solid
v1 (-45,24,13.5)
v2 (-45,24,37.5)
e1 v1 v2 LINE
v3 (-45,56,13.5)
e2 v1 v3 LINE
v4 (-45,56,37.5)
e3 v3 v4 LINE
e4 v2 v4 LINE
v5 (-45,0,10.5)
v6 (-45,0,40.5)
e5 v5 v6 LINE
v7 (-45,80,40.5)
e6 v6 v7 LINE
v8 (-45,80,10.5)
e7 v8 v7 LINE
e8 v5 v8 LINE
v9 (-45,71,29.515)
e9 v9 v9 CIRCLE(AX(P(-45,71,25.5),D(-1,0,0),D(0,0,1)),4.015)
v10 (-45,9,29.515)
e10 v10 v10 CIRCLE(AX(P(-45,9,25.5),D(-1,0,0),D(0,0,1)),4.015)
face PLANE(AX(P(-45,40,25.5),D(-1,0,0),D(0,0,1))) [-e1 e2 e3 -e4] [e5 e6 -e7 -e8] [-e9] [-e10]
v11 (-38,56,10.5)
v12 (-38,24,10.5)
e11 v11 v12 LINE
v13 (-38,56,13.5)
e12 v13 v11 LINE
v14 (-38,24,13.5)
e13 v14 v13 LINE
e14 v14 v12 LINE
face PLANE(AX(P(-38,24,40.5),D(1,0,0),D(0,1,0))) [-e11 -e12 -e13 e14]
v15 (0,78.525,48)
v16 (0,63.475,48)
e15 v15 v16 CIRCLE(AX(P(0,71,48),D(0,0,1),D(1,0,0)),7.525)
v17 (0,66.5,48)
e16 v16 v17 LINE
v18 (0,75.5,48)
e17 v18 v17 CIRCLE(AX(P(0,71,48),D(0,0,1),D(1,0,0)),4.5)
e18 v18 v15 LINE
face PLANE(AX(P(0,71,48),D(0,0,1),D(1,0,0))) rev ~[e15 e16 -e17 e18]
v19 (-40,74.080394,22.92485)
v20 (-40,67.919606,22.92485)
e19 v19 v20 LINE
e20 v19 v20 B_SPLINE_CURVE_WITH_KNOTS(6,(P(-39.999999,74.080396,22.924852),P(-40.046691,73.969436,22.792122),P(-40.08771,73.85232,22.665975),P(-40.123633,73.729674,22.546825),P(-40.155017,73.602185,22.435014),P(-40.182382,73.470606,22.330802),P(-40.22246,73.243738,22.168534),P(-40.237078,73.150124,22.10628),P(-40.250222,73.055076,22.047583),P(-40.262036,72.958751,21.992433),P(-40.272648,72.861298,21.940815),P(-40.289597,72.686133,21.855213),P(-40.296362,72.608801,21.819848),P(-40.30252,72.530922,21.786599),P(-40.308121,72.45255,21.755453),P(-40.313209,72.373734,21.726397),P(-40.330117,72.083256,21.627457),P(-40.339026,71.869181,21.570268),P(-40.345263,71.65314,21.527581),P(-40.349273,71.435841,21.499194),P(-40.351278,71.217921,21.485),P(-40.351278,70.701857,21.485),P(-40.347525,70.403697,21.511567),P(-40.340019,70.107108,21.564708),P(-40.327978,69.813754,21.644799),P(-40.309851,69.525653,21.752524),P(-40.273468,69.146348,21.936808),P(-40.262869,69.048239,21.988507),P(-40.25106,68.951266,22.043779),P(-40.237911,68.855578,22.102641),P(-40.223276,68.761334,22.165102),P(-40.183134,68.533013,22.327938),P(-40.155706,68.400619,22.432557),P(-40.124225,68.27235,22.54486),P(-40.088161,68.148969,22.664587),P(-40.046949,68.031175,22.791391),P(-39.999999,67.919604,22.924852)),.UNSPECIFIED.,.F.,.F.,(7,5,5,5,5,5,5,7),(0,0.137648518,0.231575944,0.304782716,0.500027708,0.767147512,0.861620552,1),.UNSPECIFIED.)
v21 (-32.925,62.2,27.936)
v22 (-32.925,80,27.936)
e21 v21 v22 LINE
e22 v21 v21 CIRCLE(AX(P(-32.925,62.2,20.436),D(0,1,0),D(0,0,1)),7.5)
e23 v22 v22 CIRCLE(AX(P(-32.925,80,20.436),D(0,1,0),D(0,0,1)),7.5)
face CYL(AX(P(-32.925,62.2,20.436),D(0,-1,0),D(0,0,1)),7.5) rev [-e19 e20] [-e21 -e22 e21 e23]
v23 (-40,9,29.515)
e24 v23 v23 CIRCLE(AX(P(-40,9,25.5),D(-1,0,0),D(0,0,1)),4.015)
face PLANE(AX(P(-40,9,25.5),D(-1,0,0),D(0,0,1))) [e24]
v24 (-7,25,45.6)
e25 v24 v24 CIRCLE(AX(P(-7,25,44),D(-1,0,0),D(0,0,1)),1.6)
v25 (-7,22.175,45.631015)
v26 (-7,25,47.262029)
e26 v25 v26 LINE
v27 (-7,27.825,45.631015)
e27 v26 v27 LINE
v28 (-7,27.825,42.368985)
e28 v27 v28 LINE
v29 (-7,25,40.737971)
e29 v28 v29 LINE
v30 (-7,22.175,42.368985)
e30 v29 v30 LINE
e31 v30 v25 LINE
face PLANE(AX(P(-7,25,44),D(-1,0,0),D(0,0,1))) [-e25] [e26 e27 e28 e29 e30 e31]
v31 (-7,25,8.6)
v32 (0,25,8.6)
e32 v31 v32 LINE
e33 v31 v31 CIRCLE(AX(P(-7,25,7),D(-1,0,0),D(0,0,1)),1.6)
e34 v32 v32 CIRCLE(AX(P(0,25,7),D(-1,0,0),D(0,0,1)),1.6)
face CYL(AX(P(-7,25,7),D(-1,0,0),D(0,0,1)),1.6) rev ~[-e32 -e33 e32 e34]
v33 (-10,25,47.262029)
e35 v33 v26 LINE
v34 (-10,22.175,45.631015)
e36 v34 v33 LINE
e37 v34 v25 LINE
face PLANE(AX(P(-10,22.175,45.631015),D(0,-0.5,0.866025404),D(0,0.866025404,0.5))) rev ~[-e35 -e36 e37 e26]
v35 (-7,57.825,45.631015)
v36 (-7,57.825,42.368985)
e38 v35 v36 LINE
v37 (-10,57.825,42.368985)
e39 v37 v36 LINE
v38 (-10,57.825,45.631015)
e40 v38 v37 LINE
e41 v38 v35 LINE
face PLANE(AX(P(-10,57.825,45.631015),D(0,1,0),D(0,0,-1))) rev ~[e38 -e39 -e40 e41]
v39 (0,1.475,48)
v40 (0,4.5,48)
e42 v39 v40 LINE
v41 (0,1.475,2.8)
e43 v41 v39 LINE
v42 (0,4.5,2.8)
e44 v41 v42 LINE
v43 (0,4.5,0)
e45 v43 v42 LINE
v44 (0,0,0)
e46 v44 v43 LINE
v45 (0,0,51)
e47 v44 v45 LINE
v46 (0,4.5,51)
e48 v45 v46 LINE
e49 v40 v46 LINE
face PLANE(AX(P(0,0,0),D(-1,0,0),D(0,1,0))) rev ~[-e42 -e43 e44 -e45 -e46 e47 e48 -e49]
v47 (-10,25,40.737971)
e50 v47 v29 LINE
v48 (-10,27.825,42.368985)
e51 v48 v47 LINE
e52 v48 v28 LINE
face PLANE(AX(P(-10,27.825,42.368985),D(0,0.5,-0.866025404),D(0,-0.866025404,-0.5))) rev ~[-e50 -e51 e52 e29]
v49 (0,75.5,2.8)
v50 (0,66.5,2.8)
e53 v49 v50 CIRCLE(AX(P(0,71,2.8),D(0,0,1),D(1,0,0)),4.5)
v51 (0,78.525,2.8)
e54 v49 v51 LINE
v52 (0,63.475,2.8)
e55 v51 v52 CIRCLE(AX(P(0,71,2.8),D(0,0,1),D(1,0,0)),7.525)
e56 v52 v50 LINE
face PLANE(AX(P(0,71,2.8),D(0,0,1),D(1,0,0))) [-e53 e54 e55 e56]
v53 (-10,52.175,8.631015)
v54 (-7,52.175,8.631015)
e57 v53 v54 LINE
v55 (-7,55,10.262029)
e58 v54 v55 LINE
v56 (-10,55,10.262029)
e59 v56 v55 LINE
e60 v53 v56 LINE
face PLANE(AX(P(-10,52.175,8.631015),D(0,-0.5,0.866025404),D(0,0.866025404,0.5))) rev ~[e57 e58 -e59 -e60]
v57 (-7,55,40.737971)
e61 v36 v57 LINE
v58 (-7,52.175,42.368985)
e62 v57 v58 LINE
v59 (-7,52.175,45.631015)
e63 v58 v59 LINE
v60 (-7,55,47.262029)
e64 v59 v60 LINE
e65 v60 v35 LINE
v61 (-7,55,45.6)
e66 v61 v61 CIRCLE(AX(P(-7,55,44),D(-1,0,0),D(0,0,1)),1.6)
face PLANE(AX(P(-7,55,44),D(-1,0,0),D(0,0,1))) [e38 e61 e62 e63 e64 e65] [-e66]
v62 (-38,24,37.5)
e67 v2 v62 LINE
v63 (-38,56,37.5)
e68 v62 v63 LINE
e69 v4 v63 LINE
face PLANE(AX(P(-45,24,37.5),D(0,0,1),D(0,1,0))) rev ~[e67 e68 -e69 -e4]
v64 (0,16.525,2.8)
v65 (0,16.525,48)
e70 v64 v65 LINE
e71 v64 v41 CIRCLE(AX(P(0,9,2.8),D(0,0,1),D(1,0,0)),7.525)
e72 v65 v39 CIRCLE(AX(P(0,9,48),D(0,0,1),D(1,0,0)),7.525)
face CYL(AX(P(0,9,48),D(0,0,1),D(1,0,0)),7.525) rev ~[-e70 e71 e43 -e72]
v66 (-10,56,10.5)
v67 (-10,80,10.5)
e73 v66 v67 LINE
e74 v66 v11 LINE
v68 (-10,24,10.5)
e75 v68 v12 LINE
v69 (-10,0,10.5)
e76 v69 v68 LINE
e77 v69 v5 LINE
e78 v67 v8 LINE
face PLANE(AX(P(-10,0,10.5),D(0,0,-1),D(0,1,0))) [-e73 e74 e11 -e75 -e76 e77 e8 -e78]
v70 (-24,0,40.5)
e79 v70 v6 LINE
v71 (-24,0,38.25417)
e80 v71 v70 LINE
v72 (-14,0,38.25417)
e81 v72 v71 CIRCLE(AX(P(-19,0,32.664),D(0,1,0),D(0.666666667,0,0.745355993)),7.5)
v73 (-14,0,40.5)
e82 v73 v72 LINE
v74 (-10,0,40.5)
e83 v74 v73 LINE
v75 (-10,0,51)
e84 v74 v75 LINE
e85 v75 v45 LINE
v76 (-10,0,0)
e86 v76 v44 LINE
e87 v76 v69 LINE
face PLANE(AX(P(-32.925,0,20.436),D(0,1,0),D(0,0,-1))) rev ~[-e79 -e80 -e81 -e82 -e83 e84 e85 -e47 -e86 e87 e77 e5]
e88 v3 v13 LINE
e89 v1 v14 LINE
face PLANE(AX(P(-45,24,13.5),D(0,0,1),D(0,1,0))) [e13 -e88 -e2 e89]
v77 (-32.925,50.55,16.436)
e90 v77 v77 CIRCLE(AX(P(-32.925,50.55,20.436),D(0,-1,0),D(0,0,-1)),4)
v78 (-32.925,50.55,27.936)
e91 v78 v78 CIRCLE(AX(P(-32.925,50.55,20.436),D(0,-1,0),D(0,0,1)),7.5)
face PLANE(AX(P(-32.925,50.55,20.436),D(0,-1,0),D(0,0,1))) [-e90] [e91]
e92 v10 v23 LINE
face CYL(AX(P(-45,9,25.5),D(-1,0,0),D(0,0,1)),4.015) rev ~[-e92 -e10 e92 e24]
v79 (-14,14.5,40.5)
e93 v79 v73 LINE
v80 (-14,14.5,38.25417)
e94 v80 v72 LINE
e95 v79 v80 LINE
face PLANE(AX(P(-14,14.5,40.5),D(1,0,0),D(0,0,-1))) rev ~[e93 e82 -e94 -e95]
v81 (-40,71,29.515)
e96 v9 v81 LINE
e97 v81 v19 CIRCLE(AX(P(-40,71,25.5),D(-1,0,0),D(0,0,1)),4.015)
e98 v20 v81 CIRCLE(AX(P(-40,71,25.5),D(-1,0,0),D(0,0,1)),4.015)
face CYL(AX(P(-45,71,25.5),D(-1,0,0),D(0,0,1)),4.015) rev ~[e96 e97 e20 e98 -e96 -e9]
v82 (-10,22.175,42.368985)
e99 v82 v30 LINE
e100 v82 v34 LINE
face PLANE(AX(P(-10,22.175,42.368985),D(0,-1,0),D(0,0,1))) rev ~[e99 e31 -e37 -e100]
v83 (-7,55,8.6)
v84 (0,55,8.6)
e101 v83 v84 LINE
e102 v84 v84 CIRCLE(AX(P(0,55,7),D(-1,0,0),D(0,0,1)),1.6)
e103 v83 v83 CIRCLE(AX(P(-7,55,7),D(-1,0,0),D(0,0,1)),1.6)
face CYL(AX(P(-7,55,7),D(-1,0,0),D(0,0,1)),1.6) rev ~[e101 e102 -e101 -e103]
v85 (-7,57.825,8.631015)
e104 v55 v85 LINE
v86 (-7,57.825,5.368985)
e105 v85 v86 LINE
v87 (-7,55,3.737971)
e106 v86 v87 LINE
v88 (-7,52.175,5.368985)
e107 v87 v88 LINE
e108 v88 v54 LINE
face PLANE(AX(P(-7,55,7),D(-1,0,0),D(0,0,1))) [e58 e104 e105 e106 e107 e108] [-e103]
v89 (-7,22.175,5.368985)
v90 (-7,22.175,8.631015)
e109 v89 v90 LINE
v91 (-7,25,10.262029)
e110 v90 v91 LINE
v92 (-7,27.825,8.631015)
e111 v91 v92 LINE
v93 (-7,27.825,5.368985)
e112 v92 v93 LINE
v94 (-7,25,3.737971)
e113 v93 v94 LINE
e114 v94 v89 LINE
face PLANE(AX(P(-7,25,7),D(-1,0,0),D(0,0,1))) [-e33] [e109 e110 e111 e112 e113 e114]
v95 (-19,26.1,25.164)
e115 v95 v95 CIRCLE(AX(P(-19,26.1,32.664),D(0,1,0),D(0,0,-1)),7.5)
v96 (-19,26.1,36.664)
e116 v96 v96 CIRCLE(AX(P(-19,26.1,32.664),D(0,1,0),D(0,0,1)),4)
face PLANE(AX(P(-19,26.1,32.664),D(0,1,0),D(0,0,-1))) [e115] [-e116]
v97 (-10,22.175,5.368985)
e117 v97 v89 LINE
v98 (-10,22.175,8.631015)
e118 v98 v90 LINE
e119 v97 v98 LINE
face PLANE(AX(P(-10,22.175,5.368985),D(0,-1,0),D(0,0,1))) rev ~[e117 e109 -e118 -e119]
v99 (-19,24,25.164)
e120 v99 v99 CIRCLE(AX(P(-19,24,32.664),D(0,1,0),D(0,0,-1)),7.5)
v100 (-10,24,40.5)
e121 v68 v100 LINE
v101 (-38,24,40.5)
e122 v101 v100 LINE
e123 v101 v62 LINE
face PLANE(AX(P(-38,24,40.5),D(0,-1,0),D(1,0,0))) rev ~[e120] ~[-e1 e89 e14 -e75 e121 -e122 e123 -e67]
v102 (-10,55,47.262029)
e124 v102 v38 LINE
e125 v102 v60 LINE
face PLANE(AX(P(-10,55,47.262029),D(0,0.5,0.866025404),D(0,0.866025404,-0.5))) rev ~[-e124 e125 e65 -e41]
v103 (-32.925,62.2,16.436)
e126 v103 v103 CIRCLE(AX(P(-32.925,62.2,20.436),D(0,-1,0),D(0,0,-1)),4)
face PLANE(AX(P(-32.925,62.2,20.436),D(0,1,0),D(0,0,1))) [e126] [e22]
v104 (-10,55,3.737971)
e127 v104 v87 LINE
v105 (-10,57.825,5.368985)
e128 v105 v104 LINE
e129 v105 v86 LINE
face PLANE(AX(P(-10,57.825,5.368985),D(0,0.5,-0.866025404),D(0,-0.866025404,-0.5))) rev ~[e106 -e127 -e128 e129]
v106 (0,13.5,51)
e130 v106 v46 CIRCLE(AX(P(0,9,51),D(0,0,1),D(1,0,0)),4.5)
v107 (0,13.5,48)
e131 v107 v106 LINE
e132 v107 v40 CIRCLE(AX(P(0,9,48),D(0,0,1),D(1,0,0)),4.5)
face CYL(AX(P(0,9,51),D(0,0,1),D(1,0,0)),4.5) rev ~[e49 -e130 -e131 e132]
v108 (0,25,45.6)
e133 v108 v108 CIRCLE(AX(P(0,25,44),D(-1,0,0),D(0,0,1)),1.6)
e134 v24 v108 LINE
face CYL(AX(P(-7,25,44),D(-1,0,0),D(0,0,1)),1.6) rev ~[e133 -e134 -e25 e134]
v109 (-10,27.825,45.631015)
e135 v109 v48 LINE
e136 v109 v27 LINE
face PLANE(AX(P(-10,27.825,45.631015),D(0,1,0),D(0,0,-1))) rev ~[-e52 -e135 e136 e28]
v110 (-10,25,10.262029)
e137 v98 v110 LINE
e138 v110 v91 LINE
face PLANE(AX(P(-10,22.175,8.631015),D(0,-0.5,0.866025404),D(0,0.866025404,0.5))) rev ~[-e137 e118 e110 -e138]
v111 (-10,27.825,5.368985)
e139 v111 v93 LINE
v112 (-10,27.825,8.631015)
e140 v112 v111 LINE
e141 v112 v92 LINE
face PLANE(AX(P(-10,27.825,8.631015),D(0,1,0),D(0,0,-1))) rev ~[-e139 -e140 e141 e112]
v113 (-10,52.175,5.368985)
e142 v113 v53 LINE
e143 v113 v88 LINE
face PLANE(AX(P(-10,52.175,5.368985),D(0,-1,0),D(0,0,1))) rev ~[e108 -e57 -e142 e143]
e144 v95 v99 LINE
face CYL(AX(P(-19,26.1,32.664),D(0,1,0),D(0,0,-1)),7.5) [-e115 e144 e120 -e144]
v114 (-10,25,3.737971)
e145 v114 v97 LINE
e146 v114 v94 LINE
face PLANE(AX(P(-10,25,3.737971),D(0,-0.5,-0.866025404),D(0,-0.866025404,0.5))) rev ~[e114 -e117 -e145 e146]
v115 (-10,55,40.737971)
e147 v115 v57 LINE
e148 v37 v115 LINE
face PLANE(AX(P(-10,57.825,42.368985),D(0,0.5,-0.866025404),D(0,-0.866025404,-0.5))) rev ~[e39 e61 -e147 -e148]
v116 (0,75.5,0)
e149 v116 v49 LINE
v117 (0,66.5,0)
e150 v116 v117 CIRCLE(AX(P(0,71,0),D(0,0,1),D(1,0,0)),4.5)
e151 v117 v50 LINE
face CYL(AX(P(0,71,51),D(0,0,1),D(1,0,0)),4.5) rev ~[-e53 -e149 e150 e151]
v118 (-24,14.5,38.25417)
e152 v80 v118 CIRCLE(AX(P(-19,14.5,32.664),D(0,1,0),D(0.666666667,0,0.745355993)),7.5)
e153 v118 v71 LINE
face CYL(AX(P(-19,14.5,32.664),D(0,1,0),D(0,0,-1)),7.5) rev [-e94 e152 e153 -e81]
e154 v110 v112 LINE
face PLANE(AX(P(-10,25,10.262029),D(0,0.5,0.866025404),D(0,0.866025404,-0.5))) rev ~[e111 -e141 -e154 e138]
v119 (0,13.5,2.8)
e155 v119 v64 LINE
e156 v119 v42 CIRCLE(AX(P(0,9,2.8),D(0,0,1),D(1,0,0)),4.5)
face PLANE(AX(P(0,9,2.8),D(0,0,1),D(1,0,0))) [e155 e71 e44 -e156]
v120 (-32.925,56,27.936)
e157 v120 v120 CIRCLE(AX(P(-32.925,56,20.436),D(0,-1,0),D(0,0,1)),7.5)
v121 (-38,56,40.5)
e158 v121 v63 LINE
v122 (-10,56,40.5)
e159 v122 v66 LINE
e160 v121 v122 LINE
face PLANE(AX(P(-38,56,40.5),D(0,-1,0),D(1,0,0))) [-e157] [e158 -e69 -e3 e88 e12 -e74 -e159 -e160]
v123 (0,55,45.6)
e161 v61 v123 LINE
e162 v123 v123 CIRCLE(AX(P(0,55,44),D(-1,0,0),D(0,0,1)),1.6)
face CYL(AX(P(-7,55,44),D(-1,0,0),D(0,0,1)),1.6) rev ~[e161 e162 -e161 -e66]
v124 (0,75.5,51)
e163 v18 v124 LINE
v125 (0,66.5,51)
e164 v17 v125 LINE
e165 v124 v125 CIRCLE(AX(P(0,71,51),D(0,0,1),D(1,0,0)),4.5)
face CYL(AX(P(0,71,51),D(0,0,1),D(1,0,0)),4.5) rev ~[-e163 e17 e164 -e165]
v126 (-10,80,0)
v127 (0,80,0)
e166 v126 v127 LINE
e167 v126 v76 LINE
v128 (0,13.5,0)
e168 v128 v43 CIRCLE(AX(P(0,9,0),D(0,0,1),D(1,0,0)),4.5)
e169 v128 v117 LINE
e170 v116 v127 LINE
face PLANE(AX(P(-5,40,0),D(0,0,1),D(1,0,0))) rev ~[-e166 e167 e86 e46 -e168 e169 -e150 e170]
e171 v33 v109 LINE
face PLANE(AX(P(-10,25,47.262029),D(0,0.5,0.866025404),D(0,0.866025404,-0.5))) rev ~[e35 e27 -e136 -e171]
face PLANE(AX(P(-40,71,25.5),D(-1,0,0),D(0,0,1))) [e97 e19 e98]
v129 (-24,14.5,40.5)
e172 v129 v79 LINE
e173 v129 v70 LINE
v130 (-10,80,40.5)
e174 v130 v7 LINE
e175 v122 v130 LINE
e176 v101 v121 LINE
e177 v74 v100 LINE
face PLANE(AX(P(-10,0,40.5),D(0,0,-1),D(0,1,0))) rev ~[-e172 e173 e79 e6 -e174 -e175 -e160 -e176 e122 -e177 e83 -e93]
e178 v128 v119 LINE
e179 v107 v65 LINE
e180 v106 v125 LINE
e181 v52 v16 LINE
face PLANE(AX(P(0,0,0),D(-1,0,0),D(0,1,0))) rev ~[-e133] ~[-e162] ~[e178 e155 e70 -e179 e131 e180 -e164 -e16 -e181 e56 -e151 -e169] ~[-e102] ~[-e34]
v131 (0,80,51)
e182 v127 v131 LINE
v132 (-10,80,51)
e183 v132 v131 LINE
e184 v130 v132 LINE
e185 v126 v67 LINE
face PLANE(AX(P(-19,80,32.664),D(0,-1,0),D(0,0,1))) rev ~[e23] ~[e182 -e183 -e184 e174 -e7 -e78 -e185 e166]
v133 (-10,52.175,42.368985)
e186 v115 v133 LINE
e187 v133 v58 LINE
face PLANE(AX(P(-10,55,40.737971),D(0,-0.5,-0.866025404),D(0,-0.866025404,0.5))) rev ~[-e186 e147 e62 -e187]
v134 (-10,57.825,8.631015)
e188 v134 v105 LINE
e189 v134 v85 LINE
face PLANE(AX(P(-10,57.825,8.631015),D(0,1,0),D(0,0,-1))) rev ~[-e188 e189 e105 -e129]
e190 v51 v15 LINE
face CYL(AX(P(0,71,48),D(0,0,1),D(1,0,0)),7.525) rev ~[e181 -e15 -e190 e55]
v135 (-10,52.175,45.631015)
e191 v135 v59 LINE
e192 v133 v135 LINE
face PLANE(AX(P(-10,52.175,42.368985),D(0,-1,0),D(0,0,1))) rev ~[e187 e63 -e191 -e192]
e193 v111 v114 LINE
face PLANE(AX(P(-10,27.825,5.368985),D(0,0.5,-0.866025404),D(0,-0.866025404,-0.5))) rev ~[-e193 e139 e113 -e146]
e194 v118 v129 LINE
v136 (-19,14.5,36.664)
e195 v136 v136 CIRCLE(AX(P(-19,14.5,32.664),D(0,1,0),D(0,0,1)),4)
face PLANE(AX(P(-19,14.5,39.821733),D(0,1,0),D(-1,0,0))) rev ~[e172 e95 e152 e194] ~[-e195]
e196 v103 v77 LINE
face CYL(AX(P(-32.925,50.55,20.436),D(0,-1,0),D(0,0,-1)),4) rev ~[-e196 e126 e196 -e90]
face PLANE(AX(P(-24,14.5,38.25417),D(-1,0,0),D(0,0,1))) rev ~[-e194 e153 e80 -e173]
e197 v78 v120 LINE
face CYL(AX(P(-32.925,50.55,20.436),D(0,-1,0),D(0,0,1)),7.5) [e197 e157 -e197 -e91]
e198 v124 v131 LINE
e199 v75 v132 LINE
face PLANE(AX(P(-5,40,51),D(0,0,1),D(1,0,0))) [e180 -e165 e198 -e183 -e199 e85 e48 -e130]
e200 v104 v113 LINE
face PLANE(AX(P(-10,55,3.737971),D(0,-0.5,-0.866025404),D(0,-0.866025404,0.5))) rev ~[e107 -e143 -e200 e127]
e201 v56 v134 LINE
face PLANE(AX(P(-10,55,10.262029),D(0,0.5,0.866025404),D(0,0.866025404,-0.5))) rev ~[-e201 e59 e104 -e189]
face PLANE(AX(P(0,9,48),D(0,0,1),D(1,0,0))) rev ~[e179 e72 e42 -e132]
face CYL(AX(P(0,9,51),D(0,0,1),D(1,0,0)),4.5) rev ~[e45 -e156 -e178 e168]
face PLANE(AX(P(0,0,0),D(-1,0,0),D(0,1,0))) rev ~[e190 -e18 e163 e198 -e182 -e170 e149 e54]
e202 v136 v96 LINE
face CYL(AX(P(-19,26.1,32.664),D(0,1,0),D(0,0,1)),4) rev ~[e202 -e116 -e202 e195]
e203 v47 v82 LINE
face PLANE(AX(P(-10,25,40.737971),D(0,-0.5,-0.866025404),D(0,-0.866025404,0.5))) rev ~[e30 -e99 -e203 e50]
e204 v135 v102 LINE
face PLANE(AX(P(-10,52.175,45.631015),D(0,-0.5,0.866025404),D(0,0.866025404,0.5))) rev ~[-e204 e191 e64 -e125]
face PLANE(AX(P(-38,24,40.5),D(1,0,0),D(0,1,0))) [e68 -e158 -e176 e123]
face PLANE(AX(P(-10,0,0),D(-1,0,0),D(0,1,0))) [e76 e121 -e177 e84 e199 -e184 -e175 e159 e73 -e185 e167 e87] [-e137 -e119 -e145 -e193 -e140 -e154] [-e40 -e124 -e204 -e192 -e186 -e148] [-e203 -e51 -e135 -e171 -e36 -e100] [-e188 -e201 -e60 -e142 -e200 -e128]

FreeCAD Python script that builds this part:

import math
import FreeCAD as App
import Part
import Sketcher
from FreeCAD import Vector
Q = App.Units.Quantity

doc = App.newDocument("Part")
body = doc.addObject("PartDesign::Body", "Body")

sketch1 = doc.addObject("Sketcher::SketchObject", "Sketch")
body.addObject(sketch1)
sketch1.AttachmentSupport = (doc.XY_Plane, [""])
sketch1.MapMode = "FlatFace"
sketch1.addGeometry(Part.LineSegment(Vector(-10, 80, 0), Vector(-10, 0, 0)), False)
sketch1.addGeometry(Part.LineSegment(Vector(-10, 0, 0), Vector(0, 0, 0)), False)
sketch1.addGeometry(Part.LineSegment(Vector(0, 0, 0), Vector(0, 80, 0)), False)
sketch1.addGeometry(Part.LineSegment(Vector(0, 80, 0), Vector(-10, 80, 0)), False)
sketch1.addConstraint(Sketcher.Constraint("Coincident", 0, 2, 1, 1))
sketch1.addConstraint(Sketcher.Constraint("Coincident", 1, 2, 2, 1))
sketch1.addConstraint(Sketcher.Constraint("Coincident", 2, 2, 3, 1))
sketch1.addConstraint(Sketcher.Constraint("Coincident", 3, 2, 0, 1))
sketch1.addConstraint(Sketcher.Constraint("Vertical", 0))
sketch1.addConstraint(Sketcher.Constraint("Horizontal", 1))
sketch1.addConstraint(Sketcher.Constraint("Vertical", 2))
sketch1.addConstraint(Sketcher.Constraint("Horizontal", 3))
sketch1.addConstraint(Sketcher.Constraint("Coincident", 1, 2, -1, 1))
sketch1.addConstraint(Sketcher.Constraint("DistanceX", 1, 1, 1, 2, 10.0))
sketch1.addConstraint(Sketcher.Constraint("DistanceY", 0, 2, 0, 1, 80.0))
pad1 = doc.addObject("PartDesign::Pad", "Pad")
body.addObject(pad1)
pad1.Profile = sketch1
pad1.Length = 51

sketch2 = doc.addObject("Sketcher::SketchObject", "Sketch001")
body.addObject(sketch2)
sketch2.AttachmentSupport = (doc.XY_Plane, [""])
sketch2.MapMode = "FlatFace"
sketch2.AttachmentOffset = App.Placement(Vector(0, 0, 48), App.Rotation())
sketch2.addGeometry(Part.Circle(Vector(0, 71, 0), Vector(0, 0, 1), 8), False)
sketch2.addGeometry(Part.Circle(Vector(0, 9, 0), Vector(0, 0, 1), 8), False)
sketch2.addConstraint(Sketcher.Constraint("Equal", 0, 1))
sketch2.addConstraint(Sketcher.Constraint("PointOnObject", 0, 3, -2))
sketch2.addConstraint(Sketcher.Constraint("PointOnObject", 1, 3, -2))
sketch2.addConstraint(Sketcher.Constraint("Diameter", 0, 15.05))
sketch2.addConstraint(Sketcher.Constraint("DistanceY", -1, 1, 0, 3, 71.0))
sketch2.addConstraint(Sketcher.Constraint("DistanceY", -1, 1, 1, 3, 9.0))
pocket1 = doc.addObject("PartDesign::Pocket", "Pocket")
body.addObject(pocket1)
pocket1.Profile = sketch2
pocket1.Length = 45.2

sketch3 = doc.addObject("Sketcher::SketchObject", "Sketch002")
body.addObject(sketch3)
sketch3.AttachmentSupport = (doc.XY_Plane, [""])
sketch3.MapMode = "FlatFace"
sketch3.AttachmentOffset = App.Placement(Vector(0, 0, 51), App.Rotation())
sketch3.addGeometry(Part.Circle(Vector(0, 71, 0), Vector(0, 0, 1), 4.5), False)
sketch3.addGeometry(Part.Circle(Vector(0, 9, 0), Vector(0, 0, 1), 4.5), False)
sketch3.addConstraint(Sketcher.Constraint("Equal", 0, 1))
sketch3.addConstraint(Sketcher.Constraint("PointOnObject", 0, 3, -2))
sketch3.addConstraint(Sketcher.Constraint("PointOnObject", 1, 3, -2))
sketch3.addConstraint(Sketcher.Constraint("Diameter", 0, 9.0))
sketch3.addConstraint(Sketcher.Constraint("DistanceY", -1, 1, 0, 3, 71.0))
sketch3.addConstraint(Sketcher.Constraint("DistanceY", -1, 1, 1, 3, 9.0))
pocket2 = doc.addObject("PartDesign::Pocket", "Pocket001")
body.addObject(pocket2)
pocket2.Profile = sketch3
pocket2.Type = "ThroughAll"

sketch4 = doc.addObject("Sketcher::SketchObject", "Sketch003")
body.addObject(sketch4)
sketch4.AttachmentSupport = (doc.YZ_Plane, [""])
sketch4.MapMode = "FlatFace"
sketch4.AttachmentOffset = App.Placement(Vector(0, 0, -10), App.Rotation())
sketch4.addGeometry(Part.LineSegment(Vector(80, 10, 0), Vector(0, 10, 0)), False)
sketch4.addGeometry(Part.LineSegment(Vector(0, 10, 0), Vector(0, 40, 0)), False)
sketch4.addGeometry(Part.LineSegment(Vector(0, 40, 0), Vector(80, 40, 0)), False)
sketch4.addGeometry(Part.LineSegment(Vector(80, 40, 0), Vector(80, 10, 0)), False)
sketch4.addConstraint(Sketcher.Constraint("Coincident", 0, 2, 1, 1))
sketch4.addConstraint(Sketcher.Constraint("Coincident", 1, 2, 2, 1))
sketch4.addConstraint(Sketcher.Constraint("Coincident", 2, 2, 3, 1))
sketch4.addConstraint(Sketcher.Constraint("Coincident", 3, 2, 0, 1))
sketch4.addConstraint(Sketcher.Constraint("Horizontal", 0))
sketch4.addConstraint(Sketcher.Constraint("Vertical", 1))
sketch4.addConstraint(Sketcher.Constraint("Horizontal", 2))
sketch4.addConstraint(Sketcher.Constraint("Vertical", 3))
sketch4.addConstraint(Sketcher.Constraint("PointOnObject", 0, 2, -2))
sketch4.addConstraint(Sketcher.Constraint("DistanceX", 0, 2, 0, 1, 80.0))
sketch4.addConstraint(Sketcher.Constraint("DistanceY", 1, 1, 1, 2, 30.0))
sketch4.addConstraint(Sketcher.Constraint("DistanceY", -1, 1, 0, 2, 10.5))
pad2 = doc.addObject("PartDesign::Pad", "Pad001")
body.addObject(pad2)
pad2.Profile = sketch4
pad2.Length = 35
pad2.Reversed = True

sketch5 = doc.addObject("Sketcher::SketchObject", "Sketch004")
body.addObject(sketch5)
sketch5.AttachmentSupport = (doc.YZ_Plane, [""])
sketch5.MapMode = "FlatFace"
sketch5.AttachmentOffset = App.Placement(Vector(0, 0, -45), App.Rotation())
sketch5.addGeometry(Part.Circle(Vector(71, 25.5, 0), Vector(0, 0, 1), 4), False)
sketch5.addGeometry(Part.Circle(Vector(9, 25.5, 0), Vector(0, 0, 1), 4), False)
sketch5.addConstraint(Sketcher.Constraint("Equal", 0, 1))
sketch5.addConstraint(Sketcher.Constraint("Horizontal", 0, 3, 1, 3))
sketch5.addConstraint(Sketcher.Constraint("Diameter", 0, 8.03))
sketch5.addConstraint(Sketcher.Constraint("DistanceX", -1, 1, 0, 3, 71.0))
sketch5.addConstraint(Sketcher.Constraint("DistanceX", -1, 1, 1, 3, 9.0))
sketch5.addConstraint(Sketcher.Constraint("DistanceY", -1, 1, 0, 3, 25.5))
pocket3 = doc.addObject("PartDesign::Pocket", "Pocket002")
body.addObject(pocket3)
pocket3.Profile = sketch5
pocket3.Length = 5
pocket3.Reversed = True

sketch6 = doc.addObject("Sketcher::SketchObject", "Sketch005")
body.addObject(sketch6)
sketch6.AttachmentSupport = (doc.YZ_Plane, [""])
sketch6.MapMode = "FlatFace"
sketch6.AttachmentOffset = App.Placement(Vector(0, 0, -45), App.Rotation())
sketch6.addGeometry(Part.LineSegment(Vector(56, 14, 0), Vector(24, 14, 0)), False)
sketch6.addGeometry(Part.LineSegment(Vector(24, 14, 0), Vector(24, 38, 0)), False)
sketch6.addGeometry(Part.LineSegment(Vector(24, 38, 0), Vector(56, 38, 0)), False)
sketch6.addGeometry(Part.LineSegment(Vector(56, 38, 0), Vector(56, 14, 0)), False)
sketch6.addConstraint(Sketcher.Constraint("Coincident", 0, 2, 1, 1))
sketch6.addConstraint(Sketcher.Constraint("Coincident", 1, 2, 2, 1))
sketch6.addConstraint(Sketcher.Constraint("Coincident", 2, 2, 3, 1))
sketch6.addConstraint(Sketcher.Constraint("Coincident", 3, 2, 0, 1))
sketch6.addConstraint(Sketcher.Constraint("Horizontal", 0))
sketch6.addConstraint(Sketcher.Constraint("Vertical", 1))
sketch6.addConstraint(Sketcher.Constraint("Horizontal", 2))
sketch6.addConstraint(Sketcher.Constraint("Vertical", 3))
sketch6.addConstraint(Sketcher.Constraint("DistanceX", 0, 2, 0, 1, 32.0))
sketch6.addConstraint(Sketcher.Constraint("DistanceY", 1, 1, 1, 2, 24.0))
sketch6.addConstraint(Sketcher.Constraint("DistanceX", -1, 1, 0, 2, 24.0))
sketch6.addConstraint(Sketcher.Constraint("DistanceY", -1, 1, 0, 2, 13.5))
pocket4 = doc.addObject("PartDesign::Pocket", "Pocket003")
body.addObject(pocket4)
pocket4.Profile = sketch6
pocket4.Length = 35
pocket4.Reversed = True

sketch7 = doc.addObject("Sketcher::SketchObject", "Sketch006")
body.addObject(sketch7)
sketch7.AttachmentSupport = (doc.XY_Plane, [""])
sketch7.MapMode = "FlatFace"
sketch7.AttachmentOffset = App.Placement(Vector(0, 0, 40.5), App.Rotation())
sketch7.addGeometry(Part.LineSegment(Vector(-38, 56, 0), Vector(-38, 24, 0)), False)
sketch7.addGeometry(Part.LineSegment(Vector(-38, 24, 0), Vector(-10, 24, 0)), False)
sketch7.addGeometry(Part.LineSegment(Vector(-10, 24, 0), Vector(-10, 56, 0)), False)
sketch7.addGeometry(Part.LineSegment(Vector(-10, 56, 0), Vector(-38, 56, 0)), False)
sketch7.addConstraint(Sketcher.Constraint("Coincident", 0, 2, 1, 1))
sketch7.addConstraint(Sketcher.Constraint("Coincident", 1, 2, 2, 1))
sketch7.addConstraint(Sketcher.Constraint("Coincident", 2, 2, 3, 1))
sketch7.addConstraint(Sketcher.Constraint("Coincident", 3, 2, 0, 1))
sketch7.addConstraint(Sketcher.Constraint("Vertical", 0))
sketch7.addConstraint(Sketcher.Constraint("Horizontal", 1))
sketch7.addConstraint(Sketcher.Constraint("Vertical", 2))
sketch7.addConstraint(Sketcher.Constraint("Horizontal", 3))
sketch7.addConstraint(Sketcher.Constraint("DistanceX", 1, 1, 1, 2, 28.0))
sketch7.addConstraint(Sketcher.Constraint("DistanceY", 0, 2, 0, 1, 32.0))
sketch7.addConstraint(Sketcher.Constraint("DistanceX", 0, 2, -1, 1, 38.0))
sketch7.addConstraint(Sketcher.Constraint("DistanceY", -1, 1, 0, 2, 24.0))
pocket5 = doc.addObject("PartDesign::Pocket", "Pocket004")
body.addObject(pocket5)
pocket5.Profile = sketch7
pocket5.Type = "ThroughAll"

sketch8 = doc.addObject("Sketcher::SketchObject", "Sketch007")
body.addObject(sketch8)
sketch8.AttachmentSupport = (doc.YZ_Plane, [""])
sketch8.MapMode = "FlatFace"
sketch8.AttachmentOffset = App.Placement(Vector(0, 0, -10), App.Rotation())
sketch8.addGeometry(Part.LineSegment(Vector(55, 47.3, 0), Vector(57.8, 45.6, 0)), False)
sketch8.addGeometry(Part.LineSegment(Vector(57.8, 45.6, 0), Vector(57.8, 42.4, 0)), False)
sketch8.addGeometry(Part.LineSegment(Vector(57.8, 42.4, 0), Vector(55, 40.7, 0)), False)
sketch8.addGeometry(Part.LineSegment(Vector(55, 40.7, 0), Vector(52.2, 42.4, 0)), False)
sketch8.addGeometry(Part.LineSegment(Vector(52.2, 42.4, 0), Vector(52.2, 45.6, 0)), False)
sketch8.addGeometry(Part.LineSegment(Vector(52.2, 45.6, 0), Vector(55, 47.3, 0)), False)
sketch8.addGeometry(Part.LineSegment(Vector(55, 10.3, 0), Vector(57.8, 8.6, 0)), False)
sketch8.addGeometry(Part.LineSegment(Vector(57.8, 8.6, 0), Vector(57.8, 5.4, 0)), False)
sketch8.addGeometry(Part.LineSegment(Vector(57.8, 5.4, 0), Vector(55, 3.7, 0)), False)
sketch8.addGeometry(Part.LineSegment(Vector(55, 3.7, 0), Vector(52.2, 5.4, 0)), False)
sketch8.addGeometry(Part.LineSegment(Vector(52.2, 5.4, 0), Vector(52.2, 8.6, 0)), False)
sketch8.addGeometry(Part.LineSegment(Vector(52.2, 8.6, 0), Vector(55, 10.3, 0)), False)
sketch8.addGeometry(Part.LineSegment(Vector(25, 10.3, 0), Vector(27.8, 8.6, 0)), False)
sketch8.addGeometry(Part.LineSegment(Vector(27.8, 8.6, 0), Vector(27.8, 5.4, 0)), False)
sketch8.addGeometry(Part.LineSegment(Vector(27.8, 5.4, 0), Vector(25, 3.7, 0)), False)
sketch8.addGeometry(Part.LineSegment(Vector(25, 3.7, 0), Vector(22.2, 5.4, 0)), False)
sketch8.addGeometry(Part.LineSegment(Vector(22.2, 5.4, 0), Vector(22.2, 8.6, 0)), False)
sketch8.addGeometry(Part.LineSegment(Vector(22.2, 8.6, 0), Vector(25, 10.3, 0)), False)
sketch8.addGeometry(Part.LineSegment(Vector(25, 47.3, 0), Vector(27.8, 45.6, 0)), False)
sketch8.addGeometry(Part.LineSegment(Vector(27.8, 45.6, 0), Vector(27.8, 42.4, 0)), False)
sketch8.addGeometry(Part.LineSegment(Vector(27.8, 42.4, 0), Vector(25, 40.7, 0)), False)
sketch8.addGeometry(Part.LineSegment(Vector(25, 40.7, 0), Vector(22.2, 42.4, 0)), False)
sketch8.addGeometry(Part.LineSegment(Vector(22.2, 42.4, 0), Vector(22.2, 45.6, 0)), False)
sketch8.addGeometry(Part.LineSegment(Vector(22.2, 45.6, 0), Vector(25, 47.3, 0)), False)
sketch8.addConstraint(Sketcher.Constraint("Coincident", 0, 2, 1, 1))
sketch8.addConstraint(Sketcher.Constraint("Coincident", 1, 2, 2, 1))
sketch8.addConstraint(Sketcher.Constraint("Coincident", 2, 2, 3, 1))
sketch8.addConstraint(Sketcher.Constraint("Coincident", 3, 2, 4, 1))
sketch8.addConstraint(Sketcher.Constraint("Coincident", 4, 2, 5, 1))
sketch8.addConstraint(Sketcher.Constraint("Coincident", 5, 2, 0, 1))
sketch8.addConstraint(Sketcher.Constraint("Coincident", 6, 2, 7, 1))
sketch8.addConstraint(Sketcher.Constraint("Coincident", 7, 2, 8, 1))
sketch8.addConstraint(Sketcher.Constraint("Coincident", 8, 2, 9, 1))
sketch8.addConstraint(Sketcher.Constraint("Coincident", 9, 2, 10, 1))
sketch8.addConstraint(Sketcher.Constraint("Coincident", 10, 2, 11, 1))
sketch8.addConstraint(Sketcher.Constraint("Coincident", 11, 2, 6, 1))
sketch8.addConstraint(Sketcher.Constraint("Coincident", 12, 2, 13, 1))
sketch8.addConstraint(Sketcher.Constraint("Coincident", 13, 2, 14, 1))
sketch8.addConstraint(Sketcher.Constraint("Coincident", 14, 2, 15, 1))
sketch8.addConstraint(Sketcher.Constraint("Coincident", 15, 2, 16, 1))
sketch8.addConstraint(Sketcher.Constraint("Coincident", 16, 2, 17, 1))
sketch8.addConstraint(Sketcher.Constraint("Coincident", 17, 2, 12, 1))
sketch8.addConstraint(Sketcher.Constraint("Coincident", 18, 2, 19, 1))
sketch8.addConstraint(Sketcher.Constraint("Coincident", 19, 2, 20, 1))
sketch8.addConstraint(Sketcher.Constraint("Coincident", 20, 2, 21, 1))
sketch8.addConstraint(Sketcher.Constraint("Coincident", 21, 2, 22, 1))
sketch8.addConstraint(Sketcher.Constraint("Coincident", 22, 2, 23, 1))
sketch8.addConstraint(Sketcher.Constraint("Coincident", 23, 2, 18, 1))
sketch8.addConstraint(Sketcher.Constraint("Vertical", 1))
sketch8.addConstraint(Sketcher.Constraint("Vertical", 4))
sketch8.addConstraint(Sketcher.Constraint("Vertical", 7))
sketch8.addConstraint(Sketcher.Constraint("Vertical", 10))
sketch8.addConstraint(Sketcher.Constraint("Vertical", 13))
sketch8.addConstraint(Sketcher.Constraint("Vertical", 16))
sketch8.addConstraint(Sketcher.Constraint("Vertical", 19))
sketch8.addConstraint(Sketcher.Constraint("Vertical", 22))
sketch8.addConstraint(Sketcher.Constraint("Parallel", 0, 3))
sketch8.addConstraint(Sketcher.Constraint("Parallel", 2, 5))
sketch8.addConstraint(Sketcher.Constraint("Parallel", 3, 6))
sketch8.addConstraint(Sketcher.Constraint("Parallel", 5, 8))
sketch8.addConstraint(Sketcher.Constraint("Parallel", 6, 9))
sketch8.addConstraint(Sketcher.Constraint("Parallel", 8, 11))
sketch8.addConstraint(Sketcher.Constraint("Parallel", 9, 12))
sketch8.addConstraint(Sketcher.Constraint("Parallel", 11, 14))
sketch8.addConstraint(Sketcher.Constraint("Parallel", 12, 15))
sketch8.addConstraint(Sketcher.Constraint("Parallel", 14, 17))
sketch8.addConstraint(Sketcher.Constraint("Parallel", 15, 18))
sketch8.addConstraint(Sketcher.Constraint("Parallel", 17, 20))
sketch8.addConstraint(Sketcher.Constraint("Parallel", 18, 21))
sketch8.addConstraint(Sketcher.Constraint("Parallel", 20, 23))
sketch8.addConstraint(Sketcher.Constraint("Horizontal", 1, 2, 3, 2))
sketch8.addConstraint(Sketcher.Constraint("Horizontal", 0, 2, 4, 2))
sketch8.addConstraint(Sketcher.Constraint("Horizontal", 7, 2, 9, 2))
sketch8.addConstraint(Sketcher.Constraint("Horizontal", 6, 2, 10, 2))
sketch8.addConstraint(Sketcher.Constraint("Horizontal", 10, 2, 12, 2))
sketch8.addConstraint(Sketcher.Constraint("Horizontal", 9, 2, 13, 2))
sketch8.addConstraint(Sketcher.Constraint("Horizontal", 8, 2, 14, 2))
sketch8.addConstraint(Sketcher.Constraint("Horizontal", 13, 2, 15, 2))
sketch8.addConstraint(Sketcher.Constraint("Horizontal", 12, 2, 16, 2))
sketch8.addConstraint(Sketcher.Constraint("Horizontal", 4, 2, 18, 2))
sketch8.addConstraint(Sketcher.Constraint("Horizontal", 3, 2, 19, 2))
sketch8.addConstraint(Sketcher.Constraint("Horizontal", 2, 2, 20, 2))
sketch8.addConstraint(Sketcher.Constraint("Horizontal", 19, 2, 21, 2))
sketch8.addConstraint(Sketcher.Constraint("Horizontal", 18, 2, 22, 2))
sketch8.addConstraint(Sketcher.Constraint("Vertical", 2, 2, 5, 2))
sketch8.addConstraint(Sketcher.Constraint("Vertical", 1, 2, 6, 2))
sketch8.addConstraint(Sketcher.Constraint("Vertical", 5, 2, 8, 2))
sketch8.addConstraint(Sketcher.Constraint("Vertical", 13, 2, 18, 2))
sketch8.addConstraint(Sketcher.Constraint("Equal", 4, 7))
sketch8.addConstraint(Sketcher.Constraint("Angle", 0, Q("-30 deg")))
sketch8.addConstraint(Sketcher.Constraint("DistanceX", -1, 1, 2, 2, 55.0))
sketch8.addConstraint(Sketcher.Constraint("DistanceX", -1, 1, 14, 2, 25.0))
sketch8.addConstraint(Sketcher.Constraint("DistanceY", 6, 2, 0, 2, 37.0))
sketch8.addConstraint(Sketcher.Constraint("DistanceX", 3, 2, 1, 2, 5.65))
sketch8.addConstraint(Sketcher.Constraint("DistanceY", 1, 2, 1, 1, 3.262029))
sketch8.addConstraint(Sketcher.Constraint("DistanceY", -1, 1, 2, 2, 40.737971))
pocket6 = doc.addObject("PartDesign::Pocket", "Pocket005")
body.addObject(pocket6)
pocket6.Profile = sketch8
pocket6.Length = 3
pocket6.Reversed = True

sketch9 = doc.addObject("Sketcher::SketchObject", "Sketch008")
body.addObject(sketch9)
sketch9.AttachmentSupport = (doc.YZ_Plane, [""])
sketch9.MapMode = "FlatFace"
sketch9.AttachmentOffset = App.Placement(Vector(0, 0, -7), App.Rotation())
sketch9.addGeometry(Part.Circle(Vector(55, 44, 0), Vector(0, 0, 1), 1.6), False)
sketch9.addGeometry(Part.Circle(Vector(55, 7, 0), Vector(0, 0, 1), 1.6), False)
sketch9.addGeometry(Part.Circle(Vector(25, 7, 0), Vector(0, 0, 1), 1.6), False)
sketch9.addGeometry(Part.Circle(Vector(25, 44, 0), Vector(0, 0, 1), 1.6), False)
sketch9.addConstraint(Sketcher.Constraint("Equal", 0, 1))
sketch9.addConstraint(Sketcher.Constraint("Equal", 1, 2))
sketch9.addConstraint(Sketcher.Constraint("Equal", 2, 3))
sketch9.addConstraint(Sketcher.Constraint("Horizontal", 1, 3, 2, 3))
sketch9.addConstraint(Sketcher.Constraint("Horizontal", 0, 3, 3, 3))
sketch9.addConstraint(Sketcher.Constraint("Vertical", 0, 3, 1, 3))
sketch9.addConstraint(Sketcher.Constraint("Vertical", 2, 3, 3, 3))
sketch9.addConstraint(Sketcher.Constraint("Diameter", 0, 3.2))
sketch9.addConstraint(Sketcher.Constraint("DistanceX", -1, 1, 0, 3, 55.0))
sketch9.addConstraint(Sketcher.Constraint("DistanceY", -1, 1, 0, 3, 44.0))
sketch9.addConstraint(Sketcher.Constraint("DistanceY", -1, 1, 1, 3, 7.0))
sketch9.addConstraint(Sketcher.Constraint("DistanceX", -1, 1, 2, 3, 25.0))
pocket7 = doc.addObject("PartDesign::Pocket", "Pocket006")
body.addObject(pocket7)
pocket7.Profile = sketch9
pocket7.Type = "ThroughAll"
pocket7.Reversed = True

sketch10 = doc.addObject("Sketcher::SketchObject", "Sketch009")
body.addObject(sketch10)
sketch10.AttachmentSupport = (doc.XZ_Plane, [""])
sketch10.MapMode = "FlatFace"
sketch10.AttachmentOffset = App.Placement(Vector(0, 0, -80), App.Rotation())
sketch10.addGeometry(Part.Circle(Vector(-19, 32.7, 0), Vector(0, 0, 1), 4), False)
sketch10.addConstraint(Sketcher.Constraint("Diameter", 0, 8.0))
sketch10.addConstraint(Sketcher.Constraint("DistanceX", 0, 3, -1, 1, 19.0))
sketch10.addConstraint(Sketcher.Constraint("DistanceY", -1, 1, 0, 3, 32.664))
pocket8 = doc.addObject("PartDesign::Pocket", "Pocket007")
body.addObject(pocket8)
pocket8.Profile = sketch10
pocket8.Type = "ThroughAll"
pocket8.Reversed = True

sketch11 = doc.addObject("Sketcher::SketchObject", "Sketch010")
body.addObject(sketch11)
sketch11.AttachmentSupport = (doc.XZ_Plane, [""])
sketch11.MapMode = "FlatFace"
sketch11.addGeometry(Part.Circle(Vector(-32.9, 20.4, 0), Vector(0, 0, 1), 4), False)
sketch11.addConstraint(Sketcher.Constraint("Diameter", 0, 8.0))
sketch11.addConstraint(Sketcher.Constraint("DistanceX", 0, 3, -1, 1, 32.925))
sketch11.addConstraint(Sketcher.Constraint("DistanceY", -1, 1, 0, 3, 20.436))
pocket9 = doc.addObject("PartDesign::Pocket", "Pocket008")
body.addObject(pocket9)
pocket9.Profile = sketch11
pocket9.Type = "ThroughAll"

sketch12 = doc.addObject("Sketcher::SketchObject", "Sketch011")
body.addObject(sketch12)
sketch12.AttachmentSupport = (doc.XZ_Plane, [""])
sketch12.MapMode = "FlatFace"
sketch12.AttachmentOffset = App.Placement(Vector(0, 0, -50.55), App.Rotation())
sketch12.addGeometry(Part.Circle(Vector(-32.9, 20.4, 0), Vector(0, 0, 1), 7.5), False)
sketch12.addGeometry(Part.Circle(Vector(-32.9, 20.4, 0), Vector(0, 0, 1), 4), False)
sketch12.addConstraint(Sketcher.Constraint("Coincident", 1, 3, 0, 3))
sketch12.addConstraint(Sketcher.Constraint("Diameter", 0, 15.0))
sketch12.addConstraint(Sketcher.Constraint("Diameter", 1, 8.0))
sketch12.addConstraint(Sketcher.Constraint("DistanceX", 0, 3, -1, 1, 32.925))
sketch12.addConstraint(Sketcher.Constraint("DistanceY", -1, 1, 0, 3, 20.436))
pad3 = doc.addObject("PartDesign::Pad", "Pad002")
body.addObject(pad3)
pad3.Profile = sketch12
pad3.Length = 5.45
pad3.Reversed = True

sketch13 = doc.addObject("Sketcher::SketchObject", "Sketch012")
body.addObject(sketch13)
sketch13.AttachmentSupport = (doc.XZ_Plane, [""])
sketch13.MapMode = "FlatFace"
sketch13.AttachmentOffset = App.Placement(Vector(0, 0, -26.1), App.Rotation())
sketch13.addGeometry(Part.Circle(Vector(-19, 32.7, 0), Vector(0, 0, 1), 7.5), False)
sketch13.addGeometry(Part.Circle(Vector(-19, 32.7, 0), Vector(0, 0, 1), 4), False)
sketch13.addConstraint(Sketcher.Constraint("Coincident", 1, 3, 0, 3))
sketch13.addConstraint(Sketcher.Constraint("Diameter", 0, 15.0))
sketch13.addConstraint(Sketcher.Constraint("Diameter", 1, 8.0))
sketch13.addConstraint(Sketcher.Constraint("DistanceX", 0, 3, -1, 1, 19.0))
sketch13.addConstraint(Sketcher.Constraint("DistanceY", -1, 1, 0, 3, 32.664))
pad4 = doc.addObject("PartDesign::Pad", "Pad003")
body.addObject(pad4)
pad4.Profile = sketch13
pad4.Length = 2.1

sketch14 = doc.addObject("Sketcher::SketchObject", "Sketch013")
body.addObject(sketch14)
sketch14.AttachmentSupport = (doc.XZ_Plane, [""])
sketch14.MapMode = "FlatFace"
sketch14.AttachmentOffset = App.Placement(Vector(0, 0, -80), App.Rotation())
sketch14.addGeometry(Part.Circle(Vector(-19, 32.7, 0), Vector(0, 0, 1), 4), False)
sketch14.addConstraint(Sketcher.Constraint("Diameter", 0, 8.0))
sketch14.addConstraint(Sketcher.Constraint("DistanceX", 0, 3, -1, 1, 19.0))
sketch14.addConstraint(Sketcher.Constraint("DistanceY", -1, 1, 0, 3, 32.664))
pad5 = doc.addObject("PartDesign::Pad", "Pad004")
body.addObject(pad5)
pad5.Profile = sketch14
pad5.Length = 24

sketch15 = doc.addObject("Sketcher::SketchObject", "Sketch014")
body.addObject(sketch15)
sketch15.AttachmentSupport = (doc.XZ_Plane, [""])
sketch15.MapMode = "FlatFace"
sketch15.addGeometry(Part.Circle(Vector(-32.9, 20.4, 0), Vector(0, 0, 1), 4), False)
sketch15.addConstraint(Sketcher.Constraint("Diameter", 0, 8.0))
sketch15.addConstraint(Sketcher.Constraint("DistanceX", 0, 3, -1, 1, 32.925))
sketch15.addConstraint(Sketcher.Constraint("DistanceY", -1, 1, 0, 3, 20.436))
pad6 = doc.addObject("PartDesign::Pad", "Pad005")
body.addObject(pad6)
pad6.Profile = sketch15
pad6.Length = 24
pad6.Reversed = True

sketch16 = doc.addObject("Sketcher::SketchObject", "Sketch015")
body.addObject(sketch16)
sketch16.AttachmentSupport = (doc.XZ_Plane, [""])
sketch16.MapMode = "FlatFace"
sketch16.AttachmentOffset = App.Placement(Vector(0, 0, -62.2), App.Rotation())
sketch16.addGeometry(Part.Circle(Vector(-33, 20, 0), Vector(0, 0, 1), 8), False)
sketch16.addConstraint(Sketcher.Constraint("Diameter", 0, 15.0))
sketch16.addConstraint(Sketcher.Constraint("DistanceX", 0, 3, -1, 1, 32.925))
sketch16.addConstraint(Sketcher.Constraint("DistanceY", -1, 1, 0, 3, 20.436))
pocket10 = doc.addObject("PartDesign::Pocket", "Pocket009")
body.addObject(pocket10)
pocket10.Profile = sketch16
pocket10.Length = 17.8

sketch17 = doc.addObject("Sketcher::SketchObject", "Sketch016")
body.addObject(sketch17)
sketch17.AttachmentSupport = (doc.XZ_Plane, [""])
sketch17.MapMode = "FlatFace"
sketch17.AttachmentOffset = App.Placement(Vector(0, 0, -14.5), App.Rotation())
sketch17.addGeometry(Part.Circle(Vector(-19, 33, 0), Vector(0, 0, 1), 8), False)
sketch17.addConstraint(Sketcher.Constraint("Diameter", 0, 15.0))
sketch17.addConstraint(Sketcher.Constraint("DistanceX", 0, 3, -1, 1, 19.0))
sketch17.addConstraint(Sketcher.Constraint("DistanceY", -1, 1, 0, 3, 32.664))
pocket11 = doc.addObject("PartDesign::Pocket", "Pocket010")
body.addObject(pocket11)
pocket11.Profile = sketch17
pocket11.Length = 14.5
pocket11.Reversed = True

sketch18 = doc.addObject("Sketcher::SketchObject", "Sketch017")
body.addObject(sketch18)
sketch18.AttachmentSupport = (doc.XZ_Plane, [""])
sketch18.MapMode = "FlatFace"
sketch18.AttachmentOffset = App.Placement(Vector(0, 0, -14.5), App.Rotation())
sketch18.addGeometry(Part.LineSegment(Vector(-14, 38.3, 0), Vector(-14, 40.5, 0)), False)
sketch18.addGeometry(Part.LineSegment(Vector(-14, 40.5, 0), Vector(-24, 40.5, 0)), False)
sketch18.addGeometry(Part.LineSegment(Vector(-24, 40.5, 0), Vector(-24, 38.3, 0)), False)
sketch18.addGeometry(Part.ArcOfCircle(Part.Circle(Vector(-19, 32.7, 0), Vector(0, 0, 1), 7.5), math.radians(48), math.radians(132)), False)
sketch18.addConstraint(Sketcher.Constraint("Coincident", 0, 2, 1, 1))
sketch18.addConstraint(Sketcher.Constraint("Coincident", 1, 2, 2, 1))
sketch18.addConstraint(Sketcher.Constraint("Coincident", 2, 2, 3, 2))
sketch18.addConstraint(Sketcher.Constraint("Coincident", 3, 1, 0, 1))
sketch18.addConstraint(Sketcher.Constraint("Vertical", 0))
sketch18.addConstraint(Sketcher.Constraint("Horizontal", 1))
sketch18.addConstraint(Sketcher.Constraint("Vertical", 2))
sketch18.addConstraint(Sketcher.Constraint("Horizontal", 2, 2, 3, 1))
sketch18.addConstraint(Sketcher.Constraint("Radius", 3, 7.5))
sketch18.addConstraint(Sketcher.Constraint("DistanceX", 1, 2, 1, 1, 10.0))
sketch18.addConstraint(Sketcher.Constraint("DistanceX", 3, 3, -1, 1, 19.0))
sketch18.addConstraint(Sketcher.Constraint("DistanceY", -1, 1, 0, 2, 40.5))
sketch18.addConstraint(Sketcher.Constraint("DistanceY", -1, 1, 3, 3, 32.664))
pocket12 = doc.addObject("PartDesign::Pocket", "Pocket011")
body.addObject(pocket12)
pocket12.Profile = sketch18
pocket12.Length = 14.5
pocket12.Reversed = True

doc.recompute()
